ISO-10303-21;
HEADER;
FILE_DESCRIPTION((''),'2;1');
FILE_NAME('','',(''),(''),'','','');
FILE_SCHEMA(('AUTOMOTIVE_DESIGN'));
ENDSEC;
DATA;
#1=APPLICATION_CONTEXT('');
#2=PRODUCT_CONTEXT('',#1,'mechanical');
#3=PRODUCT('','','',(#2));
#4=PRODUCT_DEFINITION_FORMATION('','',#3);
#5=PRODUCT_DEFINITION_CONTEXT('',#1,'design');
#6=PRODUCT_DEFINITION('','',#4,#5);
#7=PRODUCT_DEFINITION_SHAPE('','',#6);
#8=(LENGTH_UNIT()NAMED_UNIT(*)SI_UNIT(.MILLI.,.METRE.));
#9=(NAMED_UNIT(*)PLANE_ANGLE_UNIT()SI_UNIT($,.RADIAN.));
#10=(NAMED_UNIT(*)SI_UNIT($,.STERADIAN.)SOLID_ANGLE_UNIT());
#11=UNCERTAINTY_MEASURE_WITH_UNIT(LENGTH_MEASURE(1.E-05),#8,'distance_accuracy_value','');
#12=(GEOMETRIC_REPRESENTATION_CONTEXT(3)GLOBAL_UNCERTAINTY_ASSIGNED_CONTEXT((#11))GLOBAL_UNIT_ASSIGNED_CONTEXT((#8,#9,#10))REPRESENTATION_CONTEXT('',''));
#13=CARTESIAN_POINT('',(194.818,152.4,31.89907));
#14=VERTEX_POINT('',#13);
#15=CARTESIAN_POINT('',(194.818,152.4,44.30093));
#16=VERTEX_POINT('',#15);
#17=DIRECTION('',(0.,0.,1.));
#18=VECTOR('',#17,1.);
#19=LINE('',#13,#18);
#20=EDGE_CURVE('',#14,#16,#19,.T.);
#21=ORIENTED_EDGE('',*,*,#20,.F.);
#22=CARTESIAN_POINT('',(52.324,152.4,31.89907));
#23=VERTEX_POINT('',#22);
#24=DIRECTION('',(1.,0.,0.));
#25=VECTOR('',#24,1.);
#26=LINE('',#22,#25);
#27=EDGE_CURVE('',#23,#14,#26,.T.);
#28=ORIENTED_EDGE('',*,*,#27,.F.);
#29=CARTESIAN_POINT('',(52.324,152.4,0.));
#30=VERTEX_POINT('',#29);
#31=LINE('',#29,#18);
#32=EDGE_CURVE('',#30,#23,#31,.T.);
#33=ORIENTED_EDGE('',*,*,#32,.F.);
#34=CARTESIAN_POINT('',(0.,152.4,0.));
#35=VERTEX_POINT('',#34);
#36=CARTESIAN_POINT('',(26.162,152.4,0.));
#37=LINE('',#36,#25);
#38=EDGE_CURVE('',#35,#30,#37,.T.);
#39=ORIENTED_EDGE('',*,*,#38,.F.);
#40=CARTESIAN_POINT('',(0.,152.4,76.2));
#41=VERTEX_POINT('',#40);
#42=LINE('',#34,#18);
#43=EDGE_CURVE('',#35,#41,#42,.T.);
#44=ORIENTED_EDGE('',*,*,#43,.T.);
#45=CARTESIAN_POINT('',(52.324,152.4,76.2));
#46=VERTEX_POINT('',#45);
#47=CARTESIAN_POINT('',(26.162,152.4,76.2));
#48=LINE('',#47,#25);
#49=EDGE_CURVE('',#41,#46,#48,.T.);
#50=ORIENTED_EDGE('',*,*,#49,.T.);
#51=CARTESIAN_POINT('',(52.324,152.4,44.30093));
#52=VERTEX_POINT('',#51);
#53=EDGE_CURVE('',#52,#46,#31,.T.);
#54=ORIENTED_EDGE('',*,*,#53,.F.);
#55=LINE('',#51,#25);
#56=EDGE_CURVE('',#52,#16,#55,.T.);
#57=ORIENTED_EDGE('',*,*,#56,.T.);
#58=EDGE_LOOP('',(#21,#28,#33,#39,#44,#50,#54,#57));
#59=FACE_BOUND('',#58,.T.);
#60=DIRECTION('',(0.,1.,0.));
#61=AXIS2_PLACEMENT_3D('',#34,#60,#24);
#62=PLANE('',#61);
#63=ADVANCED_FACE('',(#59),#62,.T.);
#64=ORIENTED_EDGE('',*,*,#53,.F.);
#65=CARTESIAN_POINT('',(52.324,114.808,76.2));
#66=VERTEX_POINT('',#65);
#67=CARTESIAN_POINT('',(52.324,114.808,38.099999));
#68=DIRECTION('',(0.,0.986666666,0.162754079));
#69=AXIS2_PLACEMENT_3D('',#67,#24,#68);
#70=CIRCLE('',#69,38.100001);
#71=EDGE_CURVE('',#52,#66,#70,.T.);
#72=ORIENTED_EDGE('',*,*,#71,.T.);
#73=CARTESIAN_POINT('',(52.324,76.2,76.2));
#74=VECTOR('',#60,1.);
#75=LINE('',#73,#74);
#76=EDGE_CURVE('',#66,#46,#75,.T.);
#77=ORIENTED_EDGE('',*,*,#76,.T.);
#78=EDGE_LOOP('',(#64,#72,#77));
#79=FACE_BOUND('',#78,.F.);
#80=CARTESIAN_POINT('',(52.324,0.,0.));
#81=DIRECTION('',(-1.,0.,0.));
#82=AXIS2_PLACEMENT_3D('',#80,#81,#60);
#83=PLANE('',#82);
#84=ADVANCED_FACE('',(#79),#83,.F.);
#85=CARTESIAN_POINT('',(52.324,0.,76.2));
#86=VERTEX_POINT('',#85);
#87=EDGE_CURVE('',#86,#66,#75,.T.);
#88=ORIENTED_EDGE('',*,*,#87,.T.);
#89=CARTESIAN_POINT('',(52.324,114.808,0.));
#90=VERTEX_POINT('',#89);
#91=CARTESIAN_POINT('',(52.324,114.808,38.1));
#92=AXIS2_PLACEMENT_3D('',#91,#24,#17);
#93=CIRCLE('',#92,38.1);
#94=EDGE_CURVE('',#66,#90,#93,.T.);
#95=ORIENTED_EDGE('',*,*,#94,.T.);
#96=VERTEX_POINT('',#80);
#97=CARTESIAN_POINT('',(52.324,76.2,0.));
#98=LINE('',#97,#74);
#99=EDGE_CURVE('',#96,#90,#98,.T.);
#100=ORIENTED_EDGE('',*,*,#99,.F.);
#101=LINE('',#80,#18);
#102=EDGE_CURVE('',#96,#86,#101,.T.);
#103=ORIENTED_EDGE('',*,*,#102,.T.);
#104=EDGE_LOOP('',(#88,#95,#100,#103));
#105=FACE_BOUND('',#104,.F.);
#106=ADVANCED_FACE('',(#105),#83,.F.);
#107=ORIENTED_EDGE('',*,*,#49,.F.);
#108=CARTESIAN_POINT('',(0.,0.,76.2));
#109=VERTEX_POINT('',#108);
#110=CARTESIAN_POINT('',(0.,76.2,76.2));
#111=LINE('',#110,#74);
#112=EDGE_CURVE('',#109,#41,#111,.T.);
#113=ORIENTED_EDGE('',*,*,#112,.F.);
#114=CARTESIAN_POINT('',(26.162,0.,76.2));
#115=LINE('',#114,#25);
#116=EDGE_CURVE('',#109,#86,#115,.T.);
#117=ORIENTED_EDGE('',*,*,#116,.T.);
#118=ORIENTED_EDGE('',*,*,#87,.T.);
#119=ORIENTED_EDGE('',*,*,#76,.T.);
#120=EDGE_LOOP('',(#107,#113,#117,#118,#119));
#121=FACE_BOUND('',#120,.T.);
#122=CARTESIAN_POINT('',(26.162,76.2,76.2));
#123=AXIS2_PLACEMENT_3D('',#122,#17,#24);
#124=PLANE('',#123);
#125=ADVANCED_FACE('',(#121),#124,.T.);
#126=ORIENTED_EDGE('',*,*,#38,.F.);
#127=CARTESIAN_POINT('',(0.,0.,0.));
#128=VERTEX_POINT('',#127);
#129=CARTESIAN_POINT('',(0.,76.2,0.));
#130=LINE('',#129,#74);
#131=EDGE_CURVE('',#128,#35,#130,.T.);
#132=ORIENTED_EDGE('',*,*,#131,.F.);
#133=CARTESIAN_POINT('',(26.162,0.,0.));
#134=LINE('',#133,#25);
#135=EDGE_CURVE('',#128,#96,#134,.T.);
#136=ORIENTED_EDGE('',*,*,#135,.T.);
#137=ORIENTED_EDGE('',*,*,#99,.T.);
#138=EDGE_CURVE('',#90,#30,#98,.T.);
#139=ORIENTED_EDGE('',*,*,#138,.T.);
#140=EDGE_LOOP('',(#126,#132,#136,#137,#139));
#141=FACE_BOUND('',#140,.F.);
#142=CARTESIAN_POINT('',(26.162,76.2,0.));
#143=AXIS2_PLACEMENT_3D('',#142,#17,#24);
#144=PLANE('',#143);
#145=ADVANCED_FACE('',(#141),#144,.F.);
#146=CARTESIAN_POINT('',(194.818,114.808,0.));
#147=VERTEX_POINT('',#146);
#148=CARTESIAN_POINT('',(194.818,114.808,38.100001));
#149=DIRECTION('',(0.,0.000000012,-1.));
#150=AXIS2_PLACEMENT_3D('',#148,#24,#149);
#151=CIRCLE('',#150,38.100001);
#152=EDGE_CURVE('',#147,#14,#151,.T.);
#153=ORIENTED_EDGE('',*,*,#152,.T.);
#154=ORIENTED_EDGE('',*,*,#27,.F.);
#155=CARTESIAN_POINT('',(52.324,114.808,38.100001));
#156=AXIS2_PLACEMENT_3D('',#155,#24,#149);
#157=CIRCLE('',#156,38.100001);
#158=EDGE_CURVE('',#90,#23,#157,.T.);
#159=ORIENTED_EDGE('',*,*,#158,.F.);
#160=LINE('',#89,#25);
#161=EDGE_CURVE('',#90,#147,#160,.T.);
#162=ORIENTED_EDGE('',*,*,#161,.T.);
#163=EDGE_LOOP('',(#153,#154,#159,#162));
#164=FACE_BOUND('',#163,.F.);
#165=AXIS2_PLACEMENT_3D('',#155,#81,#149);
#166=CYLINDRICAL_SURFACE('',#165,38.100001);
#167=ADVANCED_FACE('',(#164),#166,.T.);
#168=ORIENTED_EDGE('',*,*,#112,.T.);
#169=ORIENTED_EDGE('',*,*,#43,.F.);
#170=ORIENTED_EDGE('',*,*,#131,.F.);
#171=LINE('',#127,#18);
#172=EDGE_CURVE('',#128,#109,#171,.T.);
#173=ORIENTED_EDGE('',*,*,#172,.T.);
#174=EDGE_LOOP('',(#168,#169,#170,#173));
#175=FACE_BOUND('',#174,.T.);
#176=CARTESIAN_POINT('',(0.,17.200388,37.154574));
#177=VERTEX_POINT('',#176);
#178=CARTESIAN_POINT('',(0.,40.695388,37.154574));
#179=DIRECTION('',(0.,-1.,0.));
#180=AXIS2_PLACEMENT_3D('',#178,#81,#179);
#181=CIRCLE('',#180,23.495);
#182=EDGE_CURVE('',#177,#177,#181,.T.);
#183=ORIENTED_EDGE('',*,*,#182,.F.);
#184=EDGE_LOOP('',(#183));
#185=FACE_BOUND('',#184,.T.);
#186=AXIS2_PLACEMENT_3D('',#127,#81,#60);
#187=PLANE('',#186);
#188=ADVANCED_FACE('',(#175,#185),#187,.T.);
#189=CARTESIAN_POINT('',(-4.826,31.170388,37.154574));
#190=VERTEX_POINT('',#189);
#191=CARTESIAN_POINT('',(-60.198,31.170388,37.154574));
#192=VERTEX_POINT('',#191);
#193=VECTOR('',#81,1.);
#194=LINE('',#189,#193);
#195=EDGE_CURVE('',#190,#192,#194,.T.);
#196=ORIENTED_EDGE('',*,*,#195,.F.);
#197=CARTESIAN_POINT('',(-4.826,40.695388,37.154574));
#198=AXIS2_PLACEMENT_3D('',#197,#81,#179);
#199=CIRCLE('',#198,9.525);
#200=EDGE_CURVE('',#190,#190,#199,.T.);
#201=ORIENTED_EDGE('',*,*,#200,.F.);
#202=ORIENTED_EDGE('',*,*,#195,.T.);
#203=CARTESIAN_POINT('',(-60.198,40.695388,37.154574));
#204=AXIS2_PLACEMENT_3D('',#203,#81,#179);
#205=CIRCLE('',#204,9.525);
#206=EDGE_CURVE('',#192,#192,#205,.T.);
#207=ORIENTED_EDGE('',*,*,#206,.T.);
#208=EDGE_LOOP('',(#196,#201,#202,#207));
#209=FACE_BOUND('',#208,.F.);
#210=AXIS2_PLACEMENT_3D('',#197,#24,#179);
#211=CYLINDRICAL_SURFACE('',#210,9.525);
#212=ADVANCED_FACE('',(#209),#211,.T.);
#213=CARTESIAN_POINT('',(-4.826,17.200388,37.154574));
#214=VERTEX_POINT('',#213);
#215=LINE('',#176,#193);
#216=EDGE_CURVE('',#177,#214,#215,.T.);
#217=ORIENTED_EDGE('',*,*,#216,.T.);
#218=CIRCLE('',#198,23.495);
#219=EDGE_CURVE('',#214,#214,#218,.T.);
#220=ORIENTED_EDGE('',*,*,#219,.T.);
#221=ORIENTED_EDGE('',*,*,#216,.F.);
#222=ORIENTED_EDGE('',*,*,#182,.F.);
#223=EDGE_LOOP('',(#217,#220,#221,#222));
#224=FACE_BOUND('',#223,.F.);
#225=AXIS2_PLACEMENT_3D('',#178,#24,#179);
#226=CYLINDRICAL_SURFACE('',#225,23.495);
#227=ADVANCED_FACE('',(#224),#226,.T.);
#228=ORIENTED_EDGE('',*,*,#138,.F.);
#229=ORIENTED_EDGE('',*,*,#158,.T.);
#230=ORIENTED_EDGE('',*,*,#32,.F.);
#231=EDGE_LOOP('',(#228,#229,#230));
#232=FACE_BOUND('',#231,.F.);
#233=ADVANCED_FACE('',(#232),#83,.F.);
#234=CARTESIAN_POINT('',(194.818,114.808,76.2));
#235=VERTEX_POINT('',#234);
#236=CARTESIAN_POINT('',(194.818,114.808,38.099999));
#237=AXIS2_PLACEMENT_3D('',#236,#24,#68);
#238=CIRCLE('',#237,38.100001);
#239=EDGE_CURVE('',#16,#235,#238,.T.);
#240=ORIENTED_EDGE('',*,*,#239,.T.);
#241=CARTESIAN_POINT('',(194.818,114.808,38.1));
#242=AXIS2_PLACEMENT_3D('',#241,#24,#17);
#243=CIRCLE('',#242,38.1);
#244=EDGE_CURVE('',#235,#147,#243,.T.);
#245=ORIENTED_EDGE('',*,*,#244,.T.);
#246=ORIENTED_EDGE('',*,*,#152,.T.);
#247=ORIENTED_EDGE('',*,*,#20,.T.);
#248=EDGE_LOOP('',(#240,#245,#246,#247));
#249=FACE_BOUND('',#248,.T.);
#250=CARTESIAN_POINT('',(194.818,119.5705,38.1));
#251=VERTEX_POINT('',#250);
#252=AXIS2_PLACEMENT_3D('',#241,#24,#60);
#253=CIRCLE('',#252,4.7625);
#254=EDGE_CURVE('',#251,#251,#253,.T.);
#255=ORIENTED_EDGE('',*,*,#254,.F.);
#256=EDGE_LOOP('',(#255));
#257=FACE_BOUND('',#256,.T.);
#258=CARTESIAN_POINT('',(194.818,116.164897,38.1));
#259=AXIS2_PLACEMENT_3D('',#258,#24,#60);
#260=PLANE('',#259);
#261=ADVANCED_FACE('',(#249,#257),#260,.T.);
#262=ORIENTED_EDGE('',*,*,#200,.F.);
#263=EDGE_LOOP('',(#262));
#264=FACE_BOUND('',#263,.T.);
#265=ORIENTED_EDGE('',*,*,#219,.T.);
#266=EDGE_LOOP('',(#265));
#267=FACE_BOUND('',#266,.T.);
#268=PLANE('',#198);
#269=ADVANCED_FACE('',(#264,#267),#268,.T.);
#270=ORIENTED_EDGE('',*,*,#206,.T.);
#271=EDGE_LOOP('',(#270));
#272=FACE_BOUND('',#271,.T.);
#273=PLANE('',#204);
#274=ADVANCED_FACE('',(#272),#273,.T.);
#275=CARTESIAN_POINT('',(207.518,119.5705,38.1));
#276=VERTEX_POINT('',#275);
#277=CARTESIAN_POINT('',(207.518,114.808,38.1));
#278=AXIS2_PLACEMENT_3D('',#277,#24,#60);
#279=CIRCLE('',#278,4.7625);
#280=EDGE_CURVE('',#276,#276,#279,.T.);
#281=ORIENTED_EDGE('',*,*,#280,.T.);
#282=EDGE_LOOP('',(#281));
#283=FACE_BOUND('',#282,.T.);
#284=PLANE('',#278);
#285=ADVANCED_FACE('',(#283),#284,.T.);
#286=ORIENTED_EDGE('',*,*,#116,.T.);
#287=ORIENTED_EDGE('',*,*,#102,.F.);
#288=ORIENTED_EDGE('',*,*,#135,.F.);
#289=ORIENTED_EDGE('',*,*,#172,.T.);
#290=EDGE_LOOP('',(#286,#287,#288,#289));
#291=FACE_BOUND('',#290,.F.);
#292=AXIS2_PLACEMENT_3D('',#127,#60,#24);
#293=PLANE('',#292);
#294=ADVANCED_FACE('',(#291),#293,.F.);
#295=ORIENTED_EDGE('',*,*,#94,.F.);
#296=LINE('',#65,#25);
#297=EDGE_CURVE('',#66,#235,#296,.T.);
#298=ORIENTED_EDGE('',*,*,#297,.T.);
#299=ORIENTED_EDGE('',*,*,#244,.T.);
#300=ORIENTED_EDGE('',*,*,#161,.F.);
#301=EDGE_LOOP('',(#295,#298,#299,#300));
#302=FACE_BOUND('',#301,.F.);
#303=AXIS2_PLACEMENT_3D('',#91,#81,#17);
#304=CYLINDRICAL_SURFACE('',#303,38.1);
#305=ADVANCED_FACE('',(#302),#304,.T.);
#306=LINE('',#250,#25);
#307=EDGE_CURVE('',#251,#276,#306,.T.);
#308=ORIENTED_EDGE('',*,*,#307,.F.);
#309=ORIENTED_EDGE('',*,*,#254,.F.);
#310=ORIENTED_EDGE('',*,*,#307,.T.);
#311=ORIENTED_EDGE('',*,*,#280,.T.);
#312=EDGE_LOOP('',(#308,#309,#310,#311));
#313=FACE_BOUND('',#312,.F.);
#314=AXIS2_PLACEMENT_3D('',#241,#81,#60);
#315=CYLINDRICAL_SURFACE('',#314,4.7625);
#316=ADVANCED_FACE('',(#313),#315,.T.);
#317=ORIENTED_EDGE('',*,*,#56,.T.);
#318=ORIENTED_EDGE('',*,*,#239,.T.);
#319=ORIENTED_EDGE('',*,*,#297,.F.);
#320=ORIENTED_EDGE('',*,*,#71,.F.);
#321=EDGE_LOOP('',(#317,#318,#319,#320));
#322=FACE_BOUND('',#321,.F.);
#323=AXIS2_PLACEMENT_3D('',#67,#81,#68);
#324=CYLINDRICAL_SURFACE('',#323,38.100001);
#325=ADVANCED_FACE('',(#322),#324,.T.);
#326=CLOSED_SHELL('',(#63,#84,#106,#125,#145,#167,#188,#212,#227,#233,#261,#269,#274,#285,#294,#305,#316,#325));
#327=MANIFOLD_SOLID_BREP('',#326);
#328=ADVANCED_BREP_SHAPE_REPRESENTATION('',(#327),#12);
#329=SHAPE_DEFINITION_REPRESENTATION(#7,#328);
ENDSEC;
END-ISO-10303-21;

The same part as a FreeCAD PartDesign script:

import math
import FreeCAD as App
import Part
import Sketcher
from FreeCAD import Vector
Q = App.Units.Quantity


def add_polygon(sketch, points):
    """Adds a closed chain of lines whose ends are joined by coincident constraints."""
    first, n = sketch.GeometryCount, len(points)
    for a, b in zip(points, points[1:] + points[:1]):
        sketch.addGeometry(Part.LineSegment(App.Vector(*a, 0), App.Vector(*b, 0)), False)
    for i in range(n):
        sketch.addConstraint(Sketcher.Constraint("Coincident", first + i, 2, first + (i + 1) % n, 1))

doc = App.newDocument("Part")
body = doc.addObject("PartDesign::Body", "Body")

# Sketch on XY plane
sketch1 = body.newObject("Sketcher::SketchObject", "Sketch")
sketch1.AttachmentSupport = (doc.getObject("XY_Plane"), [""])
sketch1.MapMode = "FlatFace"
add_polygon(sketch1, [(0, 152), (0, 0), (52, 0), (52, 152)])  # lines 0-3
sketch1.addConstraint([
    Sketcher.Constraint("Vertical", 0),
    Sketcher.Constraint("Horizontal", 1),
    Sketcher.Constraint("Vertical", 2),
    Sketcher.Constraint("Horizontal", 3),
    Sketcher.Constraint("Coincident", 0, 2, -1, 1),
    Sketcher.Constraint("DistanceY", 0, 2, 0, 1, Q("6 in")),
    Sketcher.Constraint("DistanceX", 1, 1, 1, 2, Q("2.06 in")),
])
pad1 = body.newObject("PartDesign::Pad", "Pad")
pad1.Profile = sketch1
pad1.Length = Q("3 in")

# Sketch on YZ plane
sketch2 = body.newObject("Sketcher::SketchObject", "Sketch001")
sketch2.AttachmentSupport = (doc.getObject("YZ_Plane"), [""])
sketch2.MapMode = "FlatFace"
sketch2.AttachmentOffset = App.Placement(Vector(0, 0, 2.06 * 25.4), App.Rotation())
sketch2.addGeometry([
    Part.LineSegment(Vector(152, 32, 0), Vector(152, 44, 0)),
    Part.ArcOfCircle(Part.Circle(Vector(115, 38, 0), Vector(0, 0, 1), 38), math.radians(9), math.radians(90)),
    Part.ArcOfCircle(Part.Circle(Vector(115, 38, 0), Vector(0, 0, 1), 38), math.radians(90), math.radians(270)),
    Part.ArcOfCircle(Part.Circle(Vector(115, 38, 0), Vector(0, 0, 1), 38), math.radians(-90), math.radians(-9)),
], False)
sketch2.addConstraint([
    Sketcher.Constraint("Coincident", 0, 2, 1, 1),
    Sketcher.Constraint("Tangent", 1, 2, 2, 1),
    Sketcher.Constraint("Tangent", 2, 2, 3, 1),
    Sketcher.Constraint("Coincident", 3, 2, 0, 1),
    Sketcher.Constraint("Vertical", 0),
    Sketcher.Constraint("Equal", 1, 2),
    Sketcher.Constraint("Equal", 2, 3),
    Sketcher.Constraint("PointOnObject", 2, 2, -1),
    Sketcher.Constraint("Vertical", 3, 3, 1, 2),
    Sketcher.Constraint("Vertical", 1, 2, 2, 2),
    Sketcher.Constraint("Radius", 1, Q("1.5 in")),
    Sketcher.Constraint("DistanceX", -1, 1, 0, 2, Q("6 in")),
    Sketcher.Constraint("DistanceX", -1, 1, 1, 3, Q("4.52 in")),
])
pad2 = body.newObject("PartDesign::Pad", "Pad001")
pad2.Profile = sketch2
pad2.Length = Q("5.61 in")

# Sketch on YZ plane
sketch3 = body.newObject("Sketcher::SketchObject", "Sketch002")
sketch3.AttachmentSupport = (doc.getObject("YZ_Plane"), [""])
sketch3.MapMode = "FlatFace"
sketch3.addGeometry(Part.Circle(Vector(41, 37, 0), Vector(0, 0, 1), 23), False)
sketch3.addConstraint([
    Sketcher.Constraint("Diameter", 0, Q("1.85 in")),
    Sketcher.Constraint("DistanceX", -1, 1, 0, 3, Q("40.695388 mm")),
    Sketcher.Constraint("DistanceY", -1, 1, 0, 3, Q("37.154574 mm")),
])
pad3 = body.newObject("PartDesign::Pad", "Pad002")
pad3.Profile = sketch3
pad3.Length = Q("0.19 in")
pad3.Reversed = True

# Sketch on YZ plane
sketch4 = body.newObject("Sketcher::SketchObject", "Sketch003")
sketch4.AttachmentSupport = (doc.getObject("YZ_Plane"), [""])
sketch4.MapMode = "FlatFace"
sketch4.AttachmentOffset = App.Placement(Vector(0, 0, -0.19 * 25.4), App.Rotation())
sketch4.addGeometry(Part.Circle(Vector(41, 37, 0), Vector(0, 0, 1), 10), False)
sketch4.addConstraint([
    Sketcher.Constraint("Diameter", 0, Q("0.75 in")),
    Sketcher.Constraint("DistanceX", -1, 1, 0, 3, Q("40.695388 mm")),
    Sketcher.Constraint("DistanceY", -1, 1, 0, 3, Q("37.154574 mm")),
])
pad4 = body.newObject("PartDesign::Pad", "Pad003")
pad4.Profile = sketch4
pad4.Length = Q("2.18 in")
pad4.Reversed = True

# Sketch on YZ plane
sketch5 = body.newObject("Sketcher::SketchObject", "Sketch004")
sketch5.AttachmentSupport = (doc.getObject("YZ_Plane"), [""])
sketch5.MapMode = "FlatFace"
sketch5.AttachmentOffset = App.Placement(Vector(0, 0, 7.67 * 25.4), App.Rotation())
sketch5.addGeometry(Part.Circle(Vector(114.8, 38.1, 0), Vector(0, 0, 1), 4.8), False)
sketch5.addConstraint([
    Sketcher.Constraint("Diameter", 0, Q("0.375 in")),
    Sketcher.Constraint("DistanceY", -1, 1, 0, 3, Q("1.5 in")),
    Sketcher.Constraint("DistanceX", -1, 1, 0, 3, Q("4.52 in")),
])
pad5 = body.newObject("PartDesign::Pad", "Pad004")
pad5.Profile = sketch5
pad5.Length = Q("0.5 in")

doc.recompute()
